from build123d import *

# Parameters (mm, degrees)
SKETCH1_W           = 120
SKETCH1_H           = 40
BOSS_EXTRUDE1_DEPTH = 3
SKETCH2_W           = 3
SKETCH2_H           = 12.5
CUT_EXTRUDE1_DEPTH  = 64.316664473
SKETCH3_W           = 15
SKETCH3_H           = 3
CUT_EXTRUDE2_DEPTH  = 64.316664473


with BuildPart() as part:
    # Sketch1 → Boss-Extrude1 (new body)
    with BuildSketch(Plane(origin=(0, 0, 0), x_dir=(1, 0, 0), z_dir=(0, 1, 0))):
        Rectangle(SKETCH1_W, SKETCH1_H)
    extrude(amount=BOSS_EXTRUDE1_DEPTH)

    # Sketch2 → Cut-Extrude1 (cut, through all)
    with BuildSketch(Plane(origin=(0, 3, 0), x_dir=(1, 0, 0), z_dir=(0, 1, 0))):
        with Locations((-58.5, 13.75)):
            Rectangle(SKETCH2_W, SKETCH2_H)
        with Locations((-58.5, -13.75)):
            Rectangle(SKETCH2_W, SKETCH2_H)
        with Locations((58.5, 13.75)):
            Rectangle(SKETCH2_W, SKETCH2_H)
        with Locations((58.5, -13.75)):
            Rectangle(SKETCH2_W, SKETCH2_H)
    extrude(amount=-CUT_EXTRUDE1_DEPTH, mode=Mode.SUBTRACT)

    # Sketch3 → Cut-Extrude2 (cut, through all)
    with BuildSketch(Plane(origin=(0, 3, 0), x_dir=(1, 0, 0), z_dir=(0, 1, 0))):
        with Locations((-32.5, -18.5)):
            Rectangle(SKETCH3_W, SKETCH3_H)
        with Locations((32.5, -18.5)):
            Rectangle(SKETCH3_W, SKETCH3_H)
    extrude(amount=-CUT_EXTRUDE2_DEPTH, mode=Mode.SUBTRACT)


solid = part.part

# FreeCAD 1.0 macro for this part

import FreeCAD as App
import Part
import Sketcher

V = App.Vector

doc = App.newDocument("Part")
body = doc.addObject("PartDesign::Body", "Body")

# Sketch on XZ plane
sketch1 = body.newObject("Sketcher::SketchObject", "Sketch")
sketch1.AttachmentSupport = (doc.getObject("XZ_Plane"), [""])
sketch1.MapMode = "FlatFace"
sketch1.addGeometry(Part.LineSegment(V(-60, -20, 0), V(-60, 20, 0)), False)
sketch1.addGeometry(Part.LineSegment(V(-60, 20, 0), V(60, 20, 0)), False)
sketch1.addGeometry(Part.LineSegment(V(60, 20, 0), V(60, -20, 0)), False)
sketch1.addGeometry(Part.LineSegment(V(60, -20, 0), V(-60, -20, 0)), False)
sketch1.addConstraint(Sketcher.Constraint("Coincident", 0, 2, 1, 1))
sketch1.addConstraint(Sketcher.Constraint("Coincident", 1, 2, 2, 1))
sketch1.addConstraint(Sketcher.Constraint("Coincident", 2, 2, 3, 1))
sketch1.addConstraint(Sketcher.Constraint("Coincident", 3, 2, 0, 1))
sketch1.addConstraint(Sketcher.Constraint("Vertical", 0))
sketch1.addConstraint(Sketcher.Constraint("Horizontal", 1))
sketch1.addConstraint(Sketcher.Constraint("Vertical", 2))
sketch1.addConstraint(Sketcher.Constraint("Horizontal", 3))
sketch1.addConstraint(Sketcher.Constraint("Symmetric", 0, 2, 2, 2, -1, 1))
sketch1.addConstraint(Sketcher.Constraint("DistanceX", 1, 1, 1, 2, 120.0))
sketch1.addConstraint(Sketcher.Constraint("DistanceY", 0, 1, 0, 2, 40.0))
pad1 = body.newObject("PartDesign::Pad", "Pad")
pad1.Profile = sketch1
pad1.Length = 3
pad1.Reversed = True

# Sketch on XZ plane
sketch2 = body.newObject("Sketcher::SketchObject", "Sketch001")
sketch2.AttachmentSupport = (doc.getObject("XZ_Plane"), [""])
sketch2.MapMode = "FlatFace"
sketch2.AttachmentOffset = App.Placement(V(0, 0, -3), App.Rotation())
sketch2.addGeometry(Part.LineSegment(V(-60, -20, 0), V(-60, -7.5, 0)), False)
sketch2.addGeometry(Part.LineSegment(V(-60, -7.5, 0), V(-57, -7.5, 0)), False)
sketch2.addGeometry(Part.LineSegment(V(-57, -7.5, 0), V(-57, -20, 0)), False)
sketch2.addGeometry(Part.LineSegment(V(-57, -20, 0), V(-60, -20, 0)), False)
sketch2.addGeometry(Part.LineSegment(V(-60, 7.5, 0), V(-60, 20, 0)), False)
sketch2.addGeometry(Part.LineSegment(V(-60, 20, 0), V(-57, 20, 0)), False)
sketch2.addGeometry(Part.LineSegment(V(-57, 20, 0), V(-57, 7.5, 0)), False)
sketch2.addGeometry(Part.LineSegment(V(-57, 7.5, 0), V(-60, 7.5, 0)), False)
sketch2.addGeometry(Part.LineSegment(V(57, -20, 0), V(57, -7.5, 0)), False)
sketch2.addGeometry(Part.LineSegment(V(57, -7.5, 0), V(60, -7.5, 0)), False)
sketch2.addGeometry(Part.LineSegment(V(60, -7.5, 0), V(60, -20, 0)), False)
sketch2.addGeometry(Part.LineSegment(V(60, -20, 0), V(57, -20, 0)), False)
sketch2.addGeometry(Part.LineSegment(V(57, 7.5, 0), V(57, 20, 0)), False)
sketch2.addGeometry(Part.LineSegment(V(57, 20, 0), V(60, 20, 0)), False)
sketch2.addGeometry(Part.LineSegment(V(60, 20, 0), V(60, 7.5, 0)), False)
sketch2.addGeometry(Part.LineSegment(V(60, 7.5, 0), V(57, 7.5, 0)), False)
sketch2.addConstraint(Sketcher.Constraint("Coincident", 0, 2, 1, 1))
sketch2.addConstraint(Sketcher.Constraint("Coincident", 1, 2, 2, 1))
sketch2.addConstraint(Sketcher.Constraint("Coincident", 2, 2, 3, 1))
sketch2.addConstraint(Sketcher.Constraint("Coincident", 3, 2, 0, 1))
sketch2.addConstraint(Sketcher.Constraint("Coincident", 4, 2, 5, 1))
sketch2.addConstraint(Sketcher.Constraint("Coincident", 5, 2, 6, 1))
sketch2.addConstraint(Sketcher.Constraint("Coincident", 6, 2, 7, 1))
sketch2.addConstraint(Sketcher.Constraint("Coincident", 7, 2, 4, 1))
sketch2.addConstraint(Sketcher.Constraint("Coincident", 8, 2, 9, 1))
sketch2.addConstraint(Sketcher.Constraint("Coincident", 9, 2, 10, 1))
sketch2.addConstraint(Sketcher.Constraint("Coincident", 10, 2, 11, 1))
sketch2.addConstraint(Sketcher.Constraint("Coincident", 11, 2, 8, 1))
sketch2.addConstraint(Sketcher.Constraint("Coincident", 12, 2, 13, 1))
sketch2.addConstraint(Sketcher.Constraint("Coincident", 13, 2, 14, 1))
sketch2.addConstraint(Sketcher.Constraint("Coincident", 14, 2, 15, 1))
sketch2.addConstraint(Sketcher.Constraint("Coincident", 15, 2, 12, 1))
sketch2.addConstraint(Sketcher.Constraint("Vertical", 0))
sketch2.addConstraint(Sketcher.Constraint("Horizontal", 1))
sketch2.addConstraint(Sketcher.Constraint("Vertical", 2))
sketch2.addConstraint(Sketcher.Constraint("Horizontal", 3))
sketch2.addConstraint(Sketcher.Constraint("Vertical", 4))
sketch2.addConstraint(Sketcher.Constraint("Horizontal", 5))
sketch2.addConstraint(Sketcher.Constraint("Vertical", 6))
sketch2.addConstraint(Sketcher.Constraint("Horizontal", 7))
sketch2.addConstraint(Sketcher.Constraint("Vertical", 8))
sketch2.addConstraint(Sketcher.Constraint("Horizontal", 9))
sketch2.addConstraint(Sketcher.Constraint("Vertical", 10))
sketch2.addConstraint(Sketcher.Constraint("Horizontal", 11))
sketch2.addConstraint(Sketcher.Constraint("Vertical", 12))
sketch2.addConstraint(Sketcher.Constraint("Horizontal", 13))
sketch2.addConstraint(Sketcher.Constraint("Vertical", 14))
sketch2.addConstraint(Sketcher.Constraint("Horizontal", 15))
sketch2.addConstraint(Sketcher.Constraint("Symmetric", 6, 2, 8, 2, -1, 1))
sketch2.addConstraint(Sketcher.Constraint("Symmetric", 4, 2, 10, 2, -1, 1))
sketch2.addConstraint(Sketcher.Constraint("Symmetric", 2, 2, 12, 2, -1, 1))
sketch2.addConstraint(Sketcher.Constraint("Symmetric", 0, 2, 14, 2, -1, 1))
sketch2.addConstraint(Sketcher.Constraint("Symmetric", 1, 2, 8, 2, -2))
sketch2.addConstraint(Sketcher.Constraint("Symmetric", 3, 2, 10, 2, -2))
sketch2.addConstraint(Sketcher.Constraint("DistanceX", 1, 1, 1, 2, 3.0))
sketch2.addConstraint(Sketcher.Constraint("DistanceY", 0, 1, 0, 2, 12.5))
sketch2.addConstraint(Sketcher.Constraint("DistanceX", 0, 2, -1, 1, 60.0))
sketch2.addConstraint(Sketcher.Constraint("DistanceY", 2, 2, -1, 1, 20.0))
pocket1 = body.newObject("PartDesign::Pocket", "Pocket")
pocket1.Profile = sketch2
pocket1.Type = "ThroughAll"
pocket1.Reversed = True

# Sketch on XZ plane
sketch3 = body.newObject("Sketcher::SketchObject", "Sketch002")
sketch3.AttachmentSupport = (doc.getObject("XZ_Plane"), [""])
sketch3.MapMode = "FlatFace"
sketch3.AttachmentOffset = App.Placement(V(0, 0, -3), App.Rotation())
sketch3.addGeometry(Part.LineSegment(V(-40, 17, 0), V(-40, 20, 0)), False)
sketch3.addGeometry(Part.LineSegment(V(-40, 20, 0), V(-25, 20, 0)), False)
sketch3.addGeometry(Part.LineSegment(V(-25, 20, 0), V(-25, 17, 0)), False)
sketch3.addGeometry(Part.LineSegment(V(-25, 17, 0), V(-40, 17, 0)), False)
sketch3.addGeometry(Part.LineSegment(V(25, 17, 0), V(25, 20, 0)), False)
sketch3.addGeometry(Part.LineSegment(V(25, 20, 0), V(40, 20, 0)), False)
sketch3.addGeometry(Part.LineSegment(V(40, 20, 0), V(40, 17, 0)), False)
sketch3.addGeometry(Part.LineSegment(V(40, 17, 0), V(25, 17, 0)), False)
sketch3.addConstraint(Sketcher.Constraint("Coincident", 0, 2, 1, 1))
sketch3.addConstraint(Sketcher.Constraint("Coincident", 1, 2, 2, 1))
sketch3.addConstraint(Sketcher.Constraint("Coincident", 2, 2, 3, 1))
sketch3.addConstraint(Sketcher.Constraint("Coincident", 3, 2, 0, 1))
sketch3.addConstraint(Sketcher.Constraint("Coincident", 4, 2, 5, 1))
sketch3.addConstraint(Sketcher.Constraint("Coincident", 5, 2, 6, 1))
sketch3.addConstraint(Sketcher.Constraint("Coincident", 6, 2, 7, 1))
sketch3.addConstraint(Sketcher.Constraint("Coincident", 7, 2, 4, 1))
sketch3.addConstraint(Sketcher.Constraint("Vertical", 0))
sketch3.addConstraint(Sketcher.Constraint("Horizontal", 1))
sketch3.addConstraint(Sketcher.Constraint("Vertical", 2))
sketch3.addConstraint(Sketcher.Constraint("Horizontal", 3))
sketch3.addConstraint(Sketcher.Constraint("Vertical", 4))
sketch3.addConstraint(Sketcher.Constraint("Horizontal", 5))
sketch3.addConstraint(Sketcher.Constraint("Vertical", 6))
sketch3.addConstraint(Sketcher.Constraint("Horizontal", 7))
sketch3.addConstraint(Sketcher.Constraint("Symmetric", 1, 2, 4, 2, -2))
sketch3.addConstraint(Sketcher.Constraint("Symmetric", 3, 2, 6, 2, -2))
sketch3.addConstraint(Sketcher.Constraint("DistanceX", 1, 1, 1, 2, 15.0))
sketch3.addConstraint(Sketcher.Constraint("DistanceY", 0, 1, 0, 2, 3.0))
sketch3.addConstraint(Sketcher.Constraint("DistanceX", 0, 2, -1, 1, 40.0))
sketch3.addConstraint(Sketcher.Constraint("DistanceY", -1, 1, 0, 2, 20.0))
pocket2 = body.newObject("PartDesign::Pocket", "Pocket001")
pocket2.Profile = sketch3
pocket2.Type = "ThroughAll"
pocket2.Reversed = True

doc.recompute()
